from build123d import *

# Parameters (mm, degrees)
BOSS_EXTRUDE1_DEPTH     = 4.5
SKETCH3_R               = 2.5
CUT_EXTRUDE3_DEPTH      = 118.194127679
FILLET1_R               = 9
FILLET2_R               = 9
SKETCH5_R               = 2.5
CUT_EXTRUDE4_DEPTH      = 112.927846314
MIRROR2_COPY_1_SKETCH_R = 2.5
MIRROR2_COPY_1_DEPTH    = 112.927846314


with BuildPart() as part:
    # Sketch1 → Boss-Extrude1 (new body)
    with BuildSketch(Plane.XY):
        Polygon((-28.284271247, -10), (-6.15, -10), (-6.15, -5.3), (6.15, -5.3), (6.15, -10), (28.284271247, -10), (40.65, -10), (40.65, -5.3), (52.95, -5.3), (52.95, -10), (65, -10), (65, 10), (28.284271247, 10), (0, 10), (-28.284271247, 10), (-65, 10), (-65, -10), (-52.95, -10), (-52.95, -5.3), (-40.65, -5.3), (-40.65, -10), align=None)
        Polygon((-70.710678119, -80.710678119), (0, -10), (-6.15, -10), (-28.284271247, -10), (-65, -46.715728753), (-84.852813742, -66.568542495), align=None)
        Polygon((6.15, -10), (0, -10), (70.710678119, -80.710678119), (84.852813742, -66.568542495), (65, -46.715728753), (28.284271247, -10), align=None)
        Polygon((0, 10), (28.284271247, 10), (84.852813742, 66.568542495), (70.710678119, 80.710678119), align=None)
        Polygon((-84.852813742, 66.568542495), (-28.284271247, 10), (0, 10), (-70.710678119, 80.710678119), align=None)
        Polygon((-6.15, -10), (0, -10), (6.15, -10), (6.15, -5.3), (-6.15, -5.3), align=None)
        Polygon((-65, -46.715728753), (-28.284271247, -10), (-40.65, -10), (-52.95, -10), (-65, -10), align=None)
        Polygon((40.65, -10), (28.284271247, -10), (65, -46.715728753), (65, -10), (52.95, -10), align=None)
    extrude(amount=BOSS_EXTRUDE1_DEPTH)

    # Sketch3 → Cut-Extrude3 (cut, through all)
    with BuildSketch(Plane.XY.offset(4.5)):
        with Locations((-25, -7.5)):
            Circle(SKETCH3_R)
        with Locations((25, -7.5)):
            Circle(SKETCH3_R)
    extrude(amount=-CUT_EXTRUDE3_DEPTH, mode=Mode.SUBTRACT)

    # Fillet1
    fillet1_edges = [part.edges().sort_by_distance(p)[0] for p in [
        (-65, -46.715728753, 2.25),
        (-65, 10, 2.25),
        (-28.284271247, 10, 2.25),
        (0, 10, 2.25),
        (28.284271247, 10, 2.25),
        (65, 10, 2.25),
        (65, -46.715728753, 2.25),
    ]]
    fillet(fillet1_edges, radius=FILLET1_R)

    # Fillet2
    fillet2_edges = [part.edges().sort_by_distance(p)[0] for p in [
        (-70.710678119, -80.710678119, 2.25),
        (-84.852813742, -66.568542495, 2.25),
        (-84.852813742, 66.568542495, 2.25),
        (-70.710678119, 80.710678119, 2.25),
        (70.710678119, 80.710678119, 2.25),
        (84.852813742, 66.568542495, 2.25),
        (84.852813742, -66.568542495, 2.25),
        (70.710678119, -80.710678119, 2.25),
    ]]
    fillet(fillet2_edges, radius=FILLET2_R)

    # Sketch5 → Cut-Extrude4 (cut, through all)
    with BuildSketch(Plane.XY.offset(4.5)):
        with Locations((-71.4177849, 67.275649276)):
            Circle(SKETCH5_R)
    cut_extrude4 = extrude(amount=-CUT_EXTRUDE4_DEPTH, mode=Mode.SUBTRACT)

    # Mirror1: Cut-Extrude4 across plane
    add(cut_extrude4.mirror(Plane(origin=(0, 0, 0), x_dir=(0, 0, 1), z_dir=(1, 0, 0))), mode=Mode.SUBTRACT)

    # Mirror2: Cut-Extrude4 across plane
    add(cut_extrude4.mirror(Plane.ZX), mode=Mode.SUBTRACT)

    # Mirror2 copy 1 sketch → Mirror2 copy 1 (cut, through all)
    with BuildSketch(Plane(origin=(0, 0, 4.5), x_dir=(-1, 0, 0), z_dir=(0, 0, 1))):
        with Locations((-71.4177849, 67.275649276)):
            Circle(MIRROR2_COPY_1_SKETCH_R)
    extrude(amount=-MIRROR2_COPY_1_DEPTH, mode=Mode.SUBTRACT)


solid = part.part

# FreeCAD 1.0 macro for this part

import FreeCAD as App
import Part
import Sketcher
Q = App.Units.Quantity


def edges_at(feature, points):
    """Names of the edges that pass closest to the given points."""
    edges = feature.Shape.Edges
    near = lambda p: min(range(len(edges)), key=lambda i: edges[i].distToShape(Part.Vertex(*p))[0])
    return sorted({f"Edge{near(p) + 1}" for p in points})


def add_polygon(sketch, points):
    """Adds a closed chain of lines whose ends are joined by coincident constraints."""
    first, n = sketch.GeometryCount, len(points)
    for a, b in zip(points, points[1:] + points[:1]):
        sketch.addGeometry(Part.LineSegment(App.Vector(*a, 0), App.Vector(*b, 0)), False)
    for i in range(n):
        sketch.addConstraint(Sketcher.Constraint("Coincident", first + i, 2, first + (i + 1) % n, 1))

doc = App.newDocument("Part")
body = doc.addObject("PartDesign::Body", "Body")

sketch1 = body.newObject("Sketcher::SketchObject", "Sketch")
sketch1.AttachmentSupport = (doc.getObject("XY_Plane"), [""])
sketch1.MapMode = "FlatFace"
add_polygon(sketch1, [(-70.7, -80.7), (0, -10), (70.7, -80.7), (84.9, -66.6), (65, -46.7), (65, 10), (28.3, 10), (84.9, 66.6), (70.7, 80.7), (0, 10), (-70.7, 80.7), (-84.9, 66.6), (-28.3, 10), (-65, 10), (-65, -46.7), (-84.9, -66.6)])
add_polygon(sketch1, [(40.6, -10), (40.6, -5.3), (53, -5.3), (53, -10)])
add_polygon(sketch1, [(-53, -10), (-53, -5.3), (-40.6, -5.3), (-40.6, -10)])
sketch1.addConstraint([
    Sketcher.Constraint("Vertical", 4),
    Sketcher.Constraint("Horizontal", 5),
    Sketcher.Constraint("Horizontal", 12),
    Sketcher.Constraint("Vertical", 13),
    Sketcher.Constraint("Vertical", 16),
    Sketcher.Constraint("Horizontal", 17),
    Sketcher.Constraint("Vertical", 18),
    Sketcher.Constraint("Horizontal", 19),
    Sketcher.Constraint("Vertical", 20),
    Sketcher.Constraint("Horizontal", 21),
    Sketcher.Constraint("Vertical", 22),
    Sketcher.Constraint("Horizontal", 23),
    Sketcher.Constraint("Symmetric", 0, 2, 8, 2, -1, 1),
    Sketcher.Constraint("Symmetric", 1, 2, 9, 2, -1, 1),
    Sketcher.Constraint("Symmetric", 2, 2, 10, 2, -1, 1),
    Sketcher.Constraint("Symmetric", 6, 2, 14, 2, -1, 1),
    Sketcher.Constraint("Symmetric", 7, 2, 15, 2, -1, 1),
    Sketcher.Constraint("Symmetric", 7, 2, 9, 2, -2),
    Sketcher.Constraint("Symmetric", 6, 2, 10, 2, -2),
    Sketcher.Constraint("Symmetric", 5, 2, 11, 2, -2),
    Sketcher.Constraint("Symmetric", 3, 2, 13, 2, -2),
    Sketcher.Constraint("Symmetric", 17, 2, 20, 2, -2),
    Sketcher.Constraint("Symmetric", 19, 2, 22, 2, -2),
    Sketcher.Constraint("PointOnObject", 0, 2, -2),
    Sketcher.Constraint("Perpendicular", 0, 1),
    Sketcher.Constraint("Perpendicular", 1, 2),
    Sketcher.Constraint("Perpendicular", 2, 3),
    Sketcher.Constraint("Perpendicular", 3, 6),
    Sketcher.Constraint("Horizontal", 5, 2, 8, 2),
    Sketcher.Constraint("Horizontal", 0, 2, 18, 2),
    Sketcher.Constraint("Distance", 0, Q("100 mm")),
    Sketcher.Constraint("Distance", 2, Q("20 mm")),
    Sketcher.Constraint("DistanceX", 17, 1, 17, 2, Q("12.3 mm")),
    Sketcher.Constraint("DistanceY", 16, 1, 16, 2, Q("4.7 mm")),
    Sketcher.Constraint("DistanceY", 0, 2, -1, 1, Q("10 mm")),
    Sketcher.Constraint("DistanceX", -1, 1, 3, 2, Q("65 mm")),
    Sketcher.Constraint("DistanceX", -1, 1, 16, 2, Q("40.65 mm")),
])
pad1 = body.newObject("PartDesign::Pad", "Pad")
pad1.Profile = sketch1
pad1.Length = 4.5

sketch2 = body.newObject("Sketcher::SketchObject", "Sketch001")
sketch2.AttachmentSupport = (doc.getObject("XY_Plane"), [""])
sketch2.MapMode = "FlatFace"
sketch2.AttachmentOffset = App.Placement(App.Vector(0, 0, 4.5), App.Rotation())
sketch2.addGeometry([
    Part.Circle(App.Vector(-25, -7.5, 0), App.Vector(0, 0, 1), 2.5),
    Part.Circle(App.Vector(25, -7.5, 0), App.Vector(0, 0, 1), 2.5),
], False)
sketch2.addConstraint([
    Sketcher.Constraint("Equal", 0, 1),
    Sketcher.Constraint("Symmetric", 0, 3, 1, 3, -2),
    Sketcher.Constraint("Diameter", 0, Q("5 mm")),
    Sketcher.Constraint("DistanceX", 0, 3, -1, 1, Q("25 mm")),
    Sketcher.Constraint("DistanceY", 0, 3, -1, 1, Q("7.5 mm")),
])
pocket1 = body.newObject("PartDesign::Pocket", "Pocket")
pocket1.Profile = sketch2
pocket1.Type = "ThroughAll"
doc.recompute()

fillet = body.newObject("PartDesign::Fillet", "Fillet")
fillet.Base = (pocket1, edges_at(pocket1, [
    (-65, -46.716, 2.25),
    (-65, 10, 2.25),
    (-28.284, 10, 2.25),
    (0, 10, 2.25),
    (28.284, 10, 2.25),
    (65, 10, 2.25),
    (65, -46.716, 2.25),
]))
fillet.Radius = 9
doc.recompute()

fillet2 = body.newObject("PartDesign::Fillet", "Fillet001")
fillet2.Base = (fillet, edges_at(fillet, [
    (-70.711, -80.711, 2.25),
    (-84.853, -66.569, 2.25),
    (-84.853, 66.569, 2.25),
    (-70.711, 80.711, 2.25),
    (70.711, 80.711, 2.25),
    (84.853, 66.569, 2.25),
    (84.853, -66.569, 2.25),
    (70.711, -80.711, 2.25),
]))
fillet2.Radius = 9

sketch3 = body.newObject("Sketcher::SketchObject", "Sketch002")
sketch3.AttachmentSupport = (doc.getObject("XY_Plane"), [""])
sketch3.MapMode = "FlatFace"
sketch3.AttachmentOffset = App.Placement(App.Vector(0, 0, 4.5), App.Rotation())
sketch3.addGeometry(Part.Circle(App.Vector(-71.4, 67.3, 0), App.Vector(0, 0, 1), 2.5), False)
sketch3.addConstraint([
    Sketcher.Constraint("Diameter", 0, Q("5 mm")),
    Sketcher.Constraint("DistanceY", -1, 1, 0, 3, Q("67.275649 mm")),
    Sketcher.Constraint("DistanceX", 0, 3, -1, 1, Q("71.417785 mm")),
])
pocket2 = body.newObject("PartDesign::Pocket", "Pocket001")
pocket2.Profile = sketch3
pocket2.Type = "ThroughAll"
doc.recompute()

mirrored = body.newObject("PartDesign::Mirrored", "Mirrored")
mirrored.Originals = [pocket2]
mirrored.MirrorPlane = (doc.getObject("YZ_Plane"), [""])
body.Tip = mirrored
doc.recompute()

mirrored2 = body.newObject("PartDesign::Mirrored", "Mirrored001")
mirrored2.Originals = [pocket2]
mirrored2.MirrorPlane = (doc.getObject("XZ_Plane"), [""])
body.Tip = mirrored2

sketch4 = body.newObject("Sketcher::SketchObject", "Sketch003")
sketch4.AttachmentSupport = (doc.getObject("XY_Plane"), [""])
sketch4.MapMode = "FlatFace"
sketch4.AttachmentOffset = App.Placement(App.Vector(0, 0, 4.5), App.Rotation())
sketch4.addGeometry(Part.Circle(App.Vector(71.4, -67.3, 0), App.Vector(0, 0, 1), 2.5), False)
sketch4.addConstraint([
    Sketcher.Constraint("Diameter", 0, Q("5 mm")),
    Sketcher.Constraint("DistanceY", 0, 3, -1, 1, Q("67.275649 mm")),
    Sketcher.Constraint("DistanceX", -1, 1, 0, 3, Q("71.417785 mm")),
])
pocket3 = body.newObject("PartDesign::Pocket", "Pocket002")
pocket3.Profile = sketch4
pocket3.Type = "ThroughAll"

doc.recompute()
